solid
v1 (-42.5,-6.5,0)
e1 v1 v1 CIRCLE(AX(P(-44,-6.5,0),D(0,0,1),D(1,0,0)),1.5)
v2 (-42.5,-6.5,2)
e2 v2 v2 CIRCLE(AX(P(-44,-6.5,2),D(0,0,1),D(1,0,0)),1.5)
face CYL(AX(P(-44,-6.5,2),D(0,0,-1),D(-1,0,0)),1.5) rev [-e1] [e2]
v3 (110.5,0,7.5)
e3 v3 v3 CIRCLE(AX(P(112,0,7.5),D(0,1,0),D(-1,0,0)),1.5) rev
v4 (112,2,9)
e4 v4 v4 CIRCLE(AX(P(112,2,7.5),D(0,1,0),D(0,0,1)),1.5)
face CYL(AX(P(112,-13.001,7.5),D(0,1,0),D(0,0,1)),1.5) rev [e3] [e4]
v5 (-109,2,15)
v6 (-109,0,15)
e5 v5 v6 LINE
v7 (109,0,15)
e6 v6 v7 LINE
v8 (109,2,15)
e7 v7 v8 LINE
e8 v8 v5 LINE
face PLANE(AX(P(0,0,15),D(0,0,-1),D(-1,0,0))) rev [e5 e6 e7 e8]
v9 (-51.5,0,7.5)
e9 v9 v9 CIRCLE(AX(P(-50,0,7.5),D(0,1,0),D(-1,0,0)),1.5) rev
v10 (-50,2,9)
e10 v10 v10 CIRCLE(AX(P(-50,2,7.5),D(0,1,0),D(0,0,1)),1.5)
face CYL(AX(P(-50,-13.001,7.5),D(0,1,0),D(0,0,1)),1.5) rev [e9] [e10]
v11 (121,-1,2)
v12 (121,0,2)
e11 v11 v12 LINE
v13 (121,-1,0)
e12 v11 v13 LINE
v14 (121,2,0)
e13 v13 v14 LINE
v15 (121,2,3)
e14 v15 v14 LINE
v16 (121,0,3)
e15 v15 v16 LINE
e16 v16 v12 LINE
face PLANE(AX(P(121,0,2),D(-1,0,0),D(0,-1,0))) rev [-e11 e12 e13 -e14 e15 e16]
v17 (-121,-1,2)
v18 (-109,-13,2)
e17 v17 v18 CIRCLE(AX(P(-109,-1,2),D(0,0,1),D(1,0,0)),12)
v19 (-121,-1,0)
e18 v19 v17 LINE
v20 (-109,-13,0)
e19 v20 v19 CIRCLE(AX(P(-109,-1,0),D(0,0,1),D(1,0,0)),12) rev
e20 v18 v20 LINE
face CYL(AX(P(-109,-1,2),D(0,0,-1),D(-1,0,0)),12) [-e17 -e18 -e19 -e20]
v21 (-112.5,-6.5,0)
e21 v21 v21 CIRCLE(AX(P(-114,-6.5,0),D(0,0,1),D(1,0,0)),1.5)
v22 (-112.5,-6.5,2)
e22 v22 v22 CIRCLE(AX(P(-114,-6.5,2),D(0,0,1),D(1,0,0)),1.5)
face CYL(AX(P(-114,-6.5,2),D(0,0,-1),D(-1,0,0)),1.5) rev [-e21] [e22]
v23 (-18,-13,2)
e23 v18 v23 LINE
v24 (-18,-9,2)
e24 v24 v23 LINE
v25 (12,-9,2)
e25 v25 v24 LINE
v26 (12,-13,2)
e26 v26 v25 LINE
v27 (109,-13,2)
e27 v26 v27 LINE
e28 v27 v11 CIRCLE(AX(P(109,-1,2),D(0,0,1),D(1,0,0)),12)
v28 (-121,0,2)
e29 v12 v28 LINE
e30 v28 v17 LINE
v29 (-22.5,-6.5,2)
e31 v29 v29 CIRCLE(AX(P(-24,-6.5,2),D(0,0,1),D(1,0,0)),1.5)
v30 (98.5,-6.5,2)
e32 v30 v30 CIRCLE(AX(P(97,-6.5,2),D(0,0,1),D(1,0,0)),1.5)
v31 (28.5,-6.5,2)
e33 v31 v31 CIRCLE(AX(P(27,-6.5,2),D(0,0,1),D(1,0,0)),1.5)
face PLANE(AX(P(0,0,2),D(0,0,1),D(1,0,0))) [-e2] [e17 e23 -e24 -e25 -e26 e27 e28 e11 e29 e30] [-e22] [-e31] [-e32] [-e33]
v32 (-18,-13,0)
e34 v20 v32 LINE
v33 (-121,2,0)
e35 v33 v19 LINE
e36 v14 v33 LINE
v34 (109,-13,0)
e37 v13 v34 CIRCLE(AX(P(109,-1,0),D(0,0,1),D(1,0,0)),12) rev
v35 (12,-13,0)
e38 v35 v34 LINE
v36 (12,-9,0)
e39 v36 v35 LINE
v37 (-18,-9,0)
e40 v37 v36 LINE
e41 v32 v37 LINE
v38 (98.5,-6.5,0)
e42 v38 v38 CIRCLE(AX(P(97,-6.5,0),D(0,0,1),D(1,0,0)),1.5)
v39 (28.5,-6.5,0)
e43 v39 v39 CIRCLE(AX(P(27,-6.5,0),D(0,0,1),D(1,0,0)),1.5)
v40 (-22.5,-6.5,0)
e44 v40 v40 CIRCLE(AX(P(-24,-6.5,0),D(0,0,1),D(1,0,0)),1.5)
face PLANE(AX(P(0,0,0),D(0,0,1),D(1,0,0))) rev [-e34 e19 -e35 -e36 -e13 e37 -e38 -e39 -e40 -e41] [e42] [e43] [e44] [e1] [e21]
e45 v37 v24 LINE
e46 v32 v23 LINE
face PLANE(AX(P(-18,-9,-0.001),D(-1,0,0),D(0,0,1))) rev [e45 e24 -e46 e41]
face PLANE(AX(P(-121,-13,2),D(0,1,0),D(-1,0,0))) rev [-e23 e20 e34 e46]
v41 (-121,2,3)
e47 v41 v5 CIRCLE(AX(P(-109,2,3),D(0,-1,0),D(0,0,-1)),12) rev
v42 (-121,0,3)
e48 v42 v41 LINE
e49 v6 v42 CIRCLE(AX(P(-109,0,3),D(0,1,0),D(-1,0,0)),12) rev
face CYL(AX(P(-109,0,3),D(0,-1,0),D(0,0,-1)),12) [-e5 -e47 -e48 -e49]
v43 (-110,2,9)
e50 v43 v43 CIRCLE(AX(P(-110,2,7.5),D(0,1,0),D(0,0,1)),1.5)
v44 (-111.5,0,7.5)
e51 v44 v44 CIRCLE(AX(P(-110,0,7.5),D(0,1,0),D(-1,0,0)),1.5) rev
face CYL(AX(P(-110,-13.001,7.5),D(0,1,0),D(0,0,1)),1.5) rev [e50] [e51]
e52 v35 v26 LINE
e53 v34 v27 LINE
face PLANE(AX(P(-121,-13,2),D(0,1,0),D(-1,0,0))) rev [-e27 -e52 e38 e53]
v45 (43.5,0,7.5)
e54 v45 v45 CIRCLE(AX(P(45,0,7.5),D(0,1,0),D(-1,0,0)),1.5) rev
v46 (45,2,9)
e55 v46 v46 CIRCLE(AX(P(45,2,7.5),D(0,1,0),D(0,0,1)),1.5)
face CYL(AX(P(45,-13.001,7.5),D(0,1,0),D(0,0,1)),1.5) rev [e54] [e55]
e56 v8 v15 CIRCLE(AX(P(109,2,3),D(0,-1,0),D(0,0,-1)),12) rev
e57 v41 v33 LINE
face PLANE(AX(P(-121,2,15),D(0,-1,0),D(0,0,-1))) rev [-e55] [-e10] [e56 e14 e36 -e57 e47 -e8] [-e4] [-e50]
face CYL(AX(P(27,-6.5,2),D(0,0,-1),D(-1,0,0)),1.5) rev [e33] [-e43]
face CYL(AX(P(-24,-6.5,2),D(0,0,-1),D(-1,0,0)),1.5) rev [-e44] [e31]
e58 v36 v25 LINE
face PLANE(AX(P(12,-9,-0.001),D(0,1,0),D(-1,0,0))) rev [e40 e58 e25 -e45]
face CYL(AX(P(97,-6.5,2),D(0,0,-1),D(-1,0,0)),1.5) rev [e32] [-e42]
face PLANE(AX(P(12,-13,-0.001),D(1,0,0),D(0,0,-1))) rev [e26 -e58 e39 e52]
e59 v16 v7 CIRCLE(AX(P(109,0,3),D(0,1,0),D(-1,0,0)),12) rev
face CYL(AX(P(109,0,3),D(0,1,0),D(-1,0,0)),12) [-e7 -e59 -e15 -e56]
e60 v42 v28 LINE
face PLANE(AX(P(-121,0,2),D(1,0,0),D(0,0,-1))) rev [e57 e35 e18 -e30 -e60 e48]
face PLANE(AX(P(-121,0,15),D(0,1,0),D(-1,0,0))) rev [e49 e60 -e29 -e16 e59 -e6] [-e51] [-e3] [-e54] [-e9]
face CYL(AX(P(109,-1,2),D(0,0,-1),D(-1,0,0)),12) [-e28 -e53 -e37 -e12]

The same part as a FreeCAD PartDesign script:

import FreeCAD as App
import Part
import Sketcher
Q = App.Units.Quantity


def edges_at(feature, points):
    """Names of the edges that pass closest to the given points."""
    edges = feature.Shape.Edges
    near = lambda p: min(range(len(edges)), key=lambda i: edges[i].distToShape(Part.Vertex(*p))[0])
    return sorted({f"Edge{near(p) + 1}" for p in points})


def add_polygon(sketch, points):
    """Adds a closed chain of lines whose ends are joined by coincident constraints."""
    first, n = sketch.GeometryCount, len(points)
    for a, b in zip(points, points[1:] + points[:1]):
        sketch.addGeometry(Part.LineSegment(App.Vector(*a, 0), App.Vector(*b, 0)), False)
    for i in range(n):
        sketch.addConstraint(Sketcher.Constraint("Coincident", first + i, 2, first + (i + 1) % n, 1))

doc = App.newDocument("Part")
body = doc.addObject("PartDesign::Body", "Body")

# Sketch on XY plane
sketch1 = body.newObject("Sketcher::SketchObject", "Sketch")
sketch1.AttachmentSupport = (doc.getObject("XY_Plane"), [""])
sketch1.MapMode = "FlatFace"
add_polygon(sketch1, [(-121, 0), (-121, -13), (121, -13), (121, 0)])  # lines 0-3
sketch1.addGeometry(Part.Circle(App.Vector(-114, -6.5, 0), App.Vector(0, 0, 1), 1.5), False)  # 4
sketch1.addGeometry(Part.Circle(App.Vector(-44, -6.5, 0), App.Vector(0, 0, 1), 1.5), False)  # 5
sketch1.addGeometry(Part.Circle(App.Vector(-24, -6.5, 0), App.Vector(0, 0, 1), 1.5), False)  # 6
sketch1.addGeometry(Part.Circle(App.Vector(27, -6.5, 0), App.Vector(0, 0, 1), 1.5), False)  # 7
sketch1.addGeometry(Part.Circle(App.Vector(97, -6.5, 0), App.Vector(0, 0, 1), 1.5), False)  # 8
sketch1.addConstraint(Sketcher.Constraint("Vertical", 0))
sketch1.addConstraint(Sketcher.Constraint("Horizontal", 1))
sketch1.addConstraint(Sketcher.Constraint("Vertical", 2))
sketch1.addConstraint(Sketcher.Constraint("Horizontal", 3))
sketch1.addConstraint(Sketcher.Constraint("Equal", 4, 5))
sketch1.addConstraint(Sketcher.Constraint("Equal", 5, 6))
sketch1.addConstraint(Sketcher.Constraint("Equal", 6, 7))
sketch1.addConstraint(Sketcher.Constraint("Equal", 7, 8))
sketch1.addConstraint(Sketcher.Constraint("Symmetric", 2, 2, 3, 2, -1, 1))
sketch1.addConstraint(Sketcher.Constraint("Horizontal", 4, 3, 5, 3))
sketch1.addConstraint(Sketcher.Constraint("Horizontal", 5, 3, 6, 3))
sketch1.addConstraint(Sketcher.Constraint("Horizontal", 6, 3, 7, 3))
sketch1.addConstraint(Sketcher.Constraint("Horizontal", 7, 3, 8, 3))
sketch1.addConstraint(Sketcher.Constraint("Diameter", 4, Q("3 mm")))
sketch1.addConstraint(Sketcher.Constraint("DistanceX", 1, 1, 1, 2, Q("242 mm")))
sketch1.addConstraint(Sketcher.Constraint("DistanceY", 0, 2, 0, 1, Q("13 mm")))
sketch1.addConstraint(Sketcher.Constraint("DistanceX", 4, 3, -1, 1, Q("114 mm")))
sketch1.addConstraint(Sketcher.Constraint("DistanceX", 5, 3, -1, 1, Q("44 mm")))
sketch1.addConstraint(Sketcher.Constraint("DistanceX", 6, 3, -1, 1, Q("24 mm")))
sketch1.addConstraint(Sketcher.Constraint("DistanceX", -1, 1, 7, 3, Q("27 mm")))
sketch1.addConstraint(Sketcher.Constraint("DistanceX", -1, 1, 8, 3, Q("97 mm")))
sketch1.addConstraint(Sketcher.Constraint("DistanceY", 4, 3, -1, 1, Q("6.5 mm")))
pad1 = body.newObject("PartDesign::Pad", "Pad")
pad1.Profile = sketch1
pad1.Length = 2

# Sketch on XY plane
sketch2 = body.newObject("Sketcher::SketchObject", "Sketch001")
sketch2.AttachmentSupport = (doc.getObject("XY_Plane"), [""])
sketch2.MapMode = "FlatFace"
sketch2.AttachmentOffset = App.Placement(App.Vector(0, 0, 2), App.Rotation())
add_polygon(sketch2, [(-18, -9), (-18, -13), (12, -13), (12, -9)])  # lines 0-3
sketch2.addConstraint(Sketcher.Constraint("Vertical", 0))
sketch2.addConstraint(Sketcher.Constraint("Horizontal", 1))
sketch2.addConstraint(Sketcher.Constraint("Vertical", 2))
sketch2.addConstraint(Sketcher.Constraint("Horizontal", 3))
sketch2.addConstraint(Sketcher.Constraint("DistanceX", 1, 1, 1, 2, Q("30 mm")))
sketch2.addConstraint(Sketcher.Constraint("DistanceY", 0, 2, 0, 1, Q("4 mm")))
sketch2.addConstraint(Sketcher.Constraint("DistanceX", 0, 2, -1, 1, Q("18 mm")))
sketch2.addConstraint(Sketcher.Constraint("DistanceY", 0, 2, -1, 1, Q("13 mm")))
pocket1 = body.newObject("PartDesign::Pocket", "Pocket")
pocket1.Profile = sketch2
pocket1.Type = "UpToFirst"

# Sketch on XY plane
sketch3 = body.newObject("Sketcher::SketchObject", "Sketch002")
sketch3.AttachmentSupport = (doc.getObject("XY_Plane"), [""])
sketch3.MapMode = "FlatFace"
add_polygon(sketch3, [(-121, 2), (-121, 0), (121, 0), (121, 2)])  # lines 0-3
sketch3.addConstraint(Sketcher.Constraint("Vertical", 0))
sketch3.addConstraint(Sketcher.Constraint("Horizontal", 1))
sketch3.addConstraint(Sketcher.Constraint("Vertical", 2))
sketch3.addConstraint(Sketcher.Constraint("Horizontal", 3))
sketch3.addConstraint(Sketcher.Constraint("Symmetric", 0, 2, 1, 2, -1, 1))
sketch3.addConstraint(Sketcher.Constraint("DistanceX", 1, 1, 1, 2, Q("242 mm")))
sketch3.addConstraint(Sketcher.Constraint("DistanceY", 0, 2, 0, 1, Q("2 mm")))
pad2 = body.newObject("PartDesign::Pad", "Pad001")
pad2.Profile = sketch3
pad2.Length = 15

# Sketch on XZ plane
sketch4 = body.newObject("Sketcher::SketchObject", "Sketch003")
sketch4.AttachmentSupport = (doc.getObject("XZ_Plane"), [""])
sketch4.MapMode = "FlatFace"
sketch4.AttachmentOffset = App.Placement(App.Vector(0, 0, -2), App.Rotation())
sketch4.addGeometry(Part.Circle(App.Vector(-110, 7.5, 0), App.Vector(0, 0, 1), 1.5), False)
sketch4.addConstraint(Sketcher.Constraint("Diameter", 0, Q("3 mm")))
sketch4.addConstraint(Sketcher.Constraint("DistanceX", 0, 3, -1, 1, Q("110 mm")))
sketch4.addConstraint(Sketcher.Constraint("DistanceY", -1, 1, 0, 3, Q("7.5 mm")))
pocket2 = body.newObject("PartDesign::Pocket", "Pocket001")
pocket2.Profile = sketch4
pocket2.Type = "UpToFirst"
pocket2.Reversed = True

# Sketch on XZ plane
sketch5 = body.newObject("Sketcher::SketchObject", "Sketch004")
sketch5.AttachmentSupport = (doc.getObject("XZ_Plane"), [""])
sketch5.MapMode = "FlatFace"
sketch5.AttachmentOffset = App.Placement(App.Vector(0, 0, -2), App.Rotation())
sketch5.addGeometry(Part.Circle(App.Vector(-50, 7.5, 0), App.Vector(0, 0, 1), 1.5), False)
sketch5.addConstraint(Sketcher.Constraint("Diameter", 0, Q("3 mm")))
sketch5.addConstraint(Sketcher.Constraint("DistanceX", 0, 3, -1, 1, Q("50 mm")))
sketch5.addConstraint(Sketcher.Constraint("DistanceY", -1, 1, 0, 3, Q("7.5 mm")))
pocket3 = body.newObject("PartDesign::Pocket", "Pocket002")
pocket3.Profile = sketch5
pocket3.Type = "UpToFirst"
pocket3.Reversed = True

# Sketch on XZ plane
sketch6 = body.newObject("Sketcher::SketchObject", "Sketch005")
sketch6.AttachmentSupport = (doc.getObject("XZ_Plane"), [""])
sketch6.MapMode = "FlatFace"
sketch6.AttachmentOffset = App.Placement(App.Vector(0, 0, -2), App.Rotation())
sketch6.addGeometry(Part.Circle(App.Vector(45, 7.5, 0), App.Vector(0, 0, 1), 1.5), False)
sketch6.addConstraint(Sketcher.Constraint("Diameter", 0, Q("3 mm")))
sketch6.addConstraint(Sketcher.Constraint("DistanceX", -1, 1, 0, 3, Q("45 mm")))
sketch6.addConstraint(Sketcher.Constraint("DistanceY", -1, 1, 0, 3, Q("7.5 mm")))
pocket4 = body.newObject("PartDesign::Pocket", "Pocket003")
pocket4.Profile = sketch6
pocket4.Type = "UpToFirst"
pocket4.Reversed = True

# Sketch on XZ plane
sketch7 = body.newObject("Sketcher::SketchObject", "Sketch006")
sketch7.AttachmentSupport = (doc.getObject("XZ_Plane"), [""])
sketch7.MapMode = "FlatFace"
sketch7.AttachmentOffset = App.Placement(App.Vector(0, 0, -2), App.Rotation())
sketch7.addGeometry(Part.Circle(App.Vector(112, 7.5, 0), App.Vector(0, 0, 1), 1.5), False)
sketch7.addConstraint(Sketcher.Constraint("Diameter", 0, Q("3 mm")))
sketch7.addConstraint(Sketcher.Constraint("DistanceX", -1, 1, 0, 3, Q("112 mm")))
sketch7.addConstraint(Sketcher.Constraint("DistanceY", -1, 1, 0, 3, Q("7.5 mm")))
pocket5 = body.newObject("PartDesign::Pocket", "Pocket004")
pocket5.Profile = sketch7
pocket5.Type = "UpToFirst"
pocket5.Reversed = True
doc.recompute()

fillet = body.newObject("PartDesign::Fillet", "Fillet")
fillet.Base = (pocket5, edges_at(pocket5, [
    (-121, 1, 15),
    (121, 1, 15),
    (121, -13, 1),
    (-121, -13, 1),
]))
fillet.Radius = 12

doc.recompute()
